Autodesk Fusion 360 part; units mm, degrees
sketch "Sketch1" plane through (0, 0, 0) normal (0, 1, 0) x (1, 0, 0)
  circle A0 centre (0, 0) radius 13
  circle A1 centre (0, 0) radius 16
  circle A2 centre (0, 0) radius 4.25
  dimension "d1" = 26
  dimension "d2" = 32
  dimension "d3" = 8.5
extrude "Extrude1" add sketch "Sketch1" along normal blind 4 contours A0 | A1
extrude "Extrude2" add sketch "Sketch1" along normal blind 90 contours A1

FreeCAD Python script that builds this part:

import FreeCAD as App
import Part
import Sketcher

V = App.Vector

doc = App.newDocument("Part")
body = doc.addObject("PartDesign::Body", "Body")

sketch1 = body.newObject("Sketcher::SketchObject", "Sketch")
sketch1.AttachmentSupport = (doc.getObject("XZ_Plane"), [""])
sketch1.MapMode = "FlatFace"
sketch1.addGeometry(Part.Circle(V(0, 0, 0), V(0, 0, 1), 16), False)
sketch1.addGeometry(Part.Circle(V(0, 0, 0), V(0, 0, 1), 4.2), False)
sketch1.addConstraint(Sketcher.Constraint("Coincident", 0, 3, -1, 1))
sketch1.addConstraint(Sketcher.Constraint("Coincident", 1, 3, -1, 1))
sketch1.addConstraint(Sketcher.Constraint("Diameter", 0, 32.0))
sketch1.addConstraint(Sketcher.Constraint("Diameter", 1, 8.5))
pad1 = body.newObject("PartDesign::Pad", "Pad")
pad1.Profile = sketch1
pad1.Length = 4
pad1.Reversed = True

sketch2 = body.newObject("Sketcher::SketchObject", "Sketch001")
sketch2.AttachmentSupport = (doc.getObject("XZ_Plane"), [""])
sketch2.MapMode = "FlatFace"
sketch2.addGeometry(Part.Circle(V(0, 0, 0), V(0, 0, 1), 16), False)
sketch2.addGeometry(Part.Circle(V(0, 0, 0), V(0, 0, 1), 13), False)
sketch2.addConstraint(Sketcher.Constraint("Coincident", 0, 3, -1, 1))
sketch2.addConstraint(Sketcher.Constraint("Coincident", 1, 3, -1, 1))
sketch2.addConstraint(Sketcher.Constraint("Diameter", 0, 32.0))
sketch2.addConstraint(Sketcher.Constraint("Diameter", 1, 26.0))
pad2 = body.newObject("PartDesign::Pad", "Pad001")
pad2.Profile = sketch2
pad2.Length = 90
pad2.Reversed = True

doc.recompute()
